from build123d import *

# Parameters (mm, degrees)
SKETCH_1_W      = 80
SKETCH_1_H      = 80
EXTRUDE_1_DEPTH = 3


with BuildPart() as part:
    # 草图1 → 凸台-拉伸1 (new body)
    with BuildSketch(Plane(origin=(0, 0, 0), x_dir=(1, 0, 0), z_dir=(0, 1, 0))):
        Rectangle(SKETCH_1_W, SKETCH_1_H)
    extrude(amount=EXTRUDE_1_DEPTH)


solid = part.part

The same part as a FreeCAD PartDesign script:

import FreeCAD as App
import Part
import Sketcher

V = App.Vector


def add_polygon(sketch, points):
    """Adds a closed chain of lines whose ends are joined by coincident constraints."""
    first, n = sketch.GeometryCount, len(points)
    for a, b in zip(points, points[1:] + points[:1]):
        sketch.addGeometry(Part.LineSegment(App.Vector(*a, 0), App.Vector(*b, 0)), False)
    for i in range(n):
        sketch.addConstraint(Sketcher.Constraint("Coincident", first + i, 2, first + (i + 1) % n, 1))

doc = App.newDocument("Part")
body = doc.addObject("PartDesign::Body", "Body")

sketch1 = body.newObject("Sketcher::SketchObject", "Sketch")
sketch1.AttachmentSupport = (doc.getObject("XZ_Plane"), [""])
sketch1.MapMode = "FlatFace"
add_polygon(sketch1, [(-40, -40), (-40, 40), (40, 40), (40, -40)])
sketch1.addConstraint(Sketcher.Constraint("Vertical", 0))
sketch1.addConstraint(Sketcher.Constraint("Horizontal", 1))
sketch1.addConstraint(Sketcher.Constraint("Vertical", 2))
sketch1.addConstraint(Sketcher.Constraint("Horizontal", 3))
sketch1.addConstraint(Sketcher.Constraint("Symmetric", 0, 2, 2, 2, -1, 1))
sketch1.addConstraint(Sketcher.Constraint("Equal", 3, 0))
sketch1.addConstraint(Sketcher.Constraint("DistanceX", 1, 1, 1, 2, 80.0))
pad1 = body.newObject("PartDesign::Pad", "Pad")
pad1.Profile = sketch1
pad1.Length = 3
pad1.Reversed = True

doc.recompute()
